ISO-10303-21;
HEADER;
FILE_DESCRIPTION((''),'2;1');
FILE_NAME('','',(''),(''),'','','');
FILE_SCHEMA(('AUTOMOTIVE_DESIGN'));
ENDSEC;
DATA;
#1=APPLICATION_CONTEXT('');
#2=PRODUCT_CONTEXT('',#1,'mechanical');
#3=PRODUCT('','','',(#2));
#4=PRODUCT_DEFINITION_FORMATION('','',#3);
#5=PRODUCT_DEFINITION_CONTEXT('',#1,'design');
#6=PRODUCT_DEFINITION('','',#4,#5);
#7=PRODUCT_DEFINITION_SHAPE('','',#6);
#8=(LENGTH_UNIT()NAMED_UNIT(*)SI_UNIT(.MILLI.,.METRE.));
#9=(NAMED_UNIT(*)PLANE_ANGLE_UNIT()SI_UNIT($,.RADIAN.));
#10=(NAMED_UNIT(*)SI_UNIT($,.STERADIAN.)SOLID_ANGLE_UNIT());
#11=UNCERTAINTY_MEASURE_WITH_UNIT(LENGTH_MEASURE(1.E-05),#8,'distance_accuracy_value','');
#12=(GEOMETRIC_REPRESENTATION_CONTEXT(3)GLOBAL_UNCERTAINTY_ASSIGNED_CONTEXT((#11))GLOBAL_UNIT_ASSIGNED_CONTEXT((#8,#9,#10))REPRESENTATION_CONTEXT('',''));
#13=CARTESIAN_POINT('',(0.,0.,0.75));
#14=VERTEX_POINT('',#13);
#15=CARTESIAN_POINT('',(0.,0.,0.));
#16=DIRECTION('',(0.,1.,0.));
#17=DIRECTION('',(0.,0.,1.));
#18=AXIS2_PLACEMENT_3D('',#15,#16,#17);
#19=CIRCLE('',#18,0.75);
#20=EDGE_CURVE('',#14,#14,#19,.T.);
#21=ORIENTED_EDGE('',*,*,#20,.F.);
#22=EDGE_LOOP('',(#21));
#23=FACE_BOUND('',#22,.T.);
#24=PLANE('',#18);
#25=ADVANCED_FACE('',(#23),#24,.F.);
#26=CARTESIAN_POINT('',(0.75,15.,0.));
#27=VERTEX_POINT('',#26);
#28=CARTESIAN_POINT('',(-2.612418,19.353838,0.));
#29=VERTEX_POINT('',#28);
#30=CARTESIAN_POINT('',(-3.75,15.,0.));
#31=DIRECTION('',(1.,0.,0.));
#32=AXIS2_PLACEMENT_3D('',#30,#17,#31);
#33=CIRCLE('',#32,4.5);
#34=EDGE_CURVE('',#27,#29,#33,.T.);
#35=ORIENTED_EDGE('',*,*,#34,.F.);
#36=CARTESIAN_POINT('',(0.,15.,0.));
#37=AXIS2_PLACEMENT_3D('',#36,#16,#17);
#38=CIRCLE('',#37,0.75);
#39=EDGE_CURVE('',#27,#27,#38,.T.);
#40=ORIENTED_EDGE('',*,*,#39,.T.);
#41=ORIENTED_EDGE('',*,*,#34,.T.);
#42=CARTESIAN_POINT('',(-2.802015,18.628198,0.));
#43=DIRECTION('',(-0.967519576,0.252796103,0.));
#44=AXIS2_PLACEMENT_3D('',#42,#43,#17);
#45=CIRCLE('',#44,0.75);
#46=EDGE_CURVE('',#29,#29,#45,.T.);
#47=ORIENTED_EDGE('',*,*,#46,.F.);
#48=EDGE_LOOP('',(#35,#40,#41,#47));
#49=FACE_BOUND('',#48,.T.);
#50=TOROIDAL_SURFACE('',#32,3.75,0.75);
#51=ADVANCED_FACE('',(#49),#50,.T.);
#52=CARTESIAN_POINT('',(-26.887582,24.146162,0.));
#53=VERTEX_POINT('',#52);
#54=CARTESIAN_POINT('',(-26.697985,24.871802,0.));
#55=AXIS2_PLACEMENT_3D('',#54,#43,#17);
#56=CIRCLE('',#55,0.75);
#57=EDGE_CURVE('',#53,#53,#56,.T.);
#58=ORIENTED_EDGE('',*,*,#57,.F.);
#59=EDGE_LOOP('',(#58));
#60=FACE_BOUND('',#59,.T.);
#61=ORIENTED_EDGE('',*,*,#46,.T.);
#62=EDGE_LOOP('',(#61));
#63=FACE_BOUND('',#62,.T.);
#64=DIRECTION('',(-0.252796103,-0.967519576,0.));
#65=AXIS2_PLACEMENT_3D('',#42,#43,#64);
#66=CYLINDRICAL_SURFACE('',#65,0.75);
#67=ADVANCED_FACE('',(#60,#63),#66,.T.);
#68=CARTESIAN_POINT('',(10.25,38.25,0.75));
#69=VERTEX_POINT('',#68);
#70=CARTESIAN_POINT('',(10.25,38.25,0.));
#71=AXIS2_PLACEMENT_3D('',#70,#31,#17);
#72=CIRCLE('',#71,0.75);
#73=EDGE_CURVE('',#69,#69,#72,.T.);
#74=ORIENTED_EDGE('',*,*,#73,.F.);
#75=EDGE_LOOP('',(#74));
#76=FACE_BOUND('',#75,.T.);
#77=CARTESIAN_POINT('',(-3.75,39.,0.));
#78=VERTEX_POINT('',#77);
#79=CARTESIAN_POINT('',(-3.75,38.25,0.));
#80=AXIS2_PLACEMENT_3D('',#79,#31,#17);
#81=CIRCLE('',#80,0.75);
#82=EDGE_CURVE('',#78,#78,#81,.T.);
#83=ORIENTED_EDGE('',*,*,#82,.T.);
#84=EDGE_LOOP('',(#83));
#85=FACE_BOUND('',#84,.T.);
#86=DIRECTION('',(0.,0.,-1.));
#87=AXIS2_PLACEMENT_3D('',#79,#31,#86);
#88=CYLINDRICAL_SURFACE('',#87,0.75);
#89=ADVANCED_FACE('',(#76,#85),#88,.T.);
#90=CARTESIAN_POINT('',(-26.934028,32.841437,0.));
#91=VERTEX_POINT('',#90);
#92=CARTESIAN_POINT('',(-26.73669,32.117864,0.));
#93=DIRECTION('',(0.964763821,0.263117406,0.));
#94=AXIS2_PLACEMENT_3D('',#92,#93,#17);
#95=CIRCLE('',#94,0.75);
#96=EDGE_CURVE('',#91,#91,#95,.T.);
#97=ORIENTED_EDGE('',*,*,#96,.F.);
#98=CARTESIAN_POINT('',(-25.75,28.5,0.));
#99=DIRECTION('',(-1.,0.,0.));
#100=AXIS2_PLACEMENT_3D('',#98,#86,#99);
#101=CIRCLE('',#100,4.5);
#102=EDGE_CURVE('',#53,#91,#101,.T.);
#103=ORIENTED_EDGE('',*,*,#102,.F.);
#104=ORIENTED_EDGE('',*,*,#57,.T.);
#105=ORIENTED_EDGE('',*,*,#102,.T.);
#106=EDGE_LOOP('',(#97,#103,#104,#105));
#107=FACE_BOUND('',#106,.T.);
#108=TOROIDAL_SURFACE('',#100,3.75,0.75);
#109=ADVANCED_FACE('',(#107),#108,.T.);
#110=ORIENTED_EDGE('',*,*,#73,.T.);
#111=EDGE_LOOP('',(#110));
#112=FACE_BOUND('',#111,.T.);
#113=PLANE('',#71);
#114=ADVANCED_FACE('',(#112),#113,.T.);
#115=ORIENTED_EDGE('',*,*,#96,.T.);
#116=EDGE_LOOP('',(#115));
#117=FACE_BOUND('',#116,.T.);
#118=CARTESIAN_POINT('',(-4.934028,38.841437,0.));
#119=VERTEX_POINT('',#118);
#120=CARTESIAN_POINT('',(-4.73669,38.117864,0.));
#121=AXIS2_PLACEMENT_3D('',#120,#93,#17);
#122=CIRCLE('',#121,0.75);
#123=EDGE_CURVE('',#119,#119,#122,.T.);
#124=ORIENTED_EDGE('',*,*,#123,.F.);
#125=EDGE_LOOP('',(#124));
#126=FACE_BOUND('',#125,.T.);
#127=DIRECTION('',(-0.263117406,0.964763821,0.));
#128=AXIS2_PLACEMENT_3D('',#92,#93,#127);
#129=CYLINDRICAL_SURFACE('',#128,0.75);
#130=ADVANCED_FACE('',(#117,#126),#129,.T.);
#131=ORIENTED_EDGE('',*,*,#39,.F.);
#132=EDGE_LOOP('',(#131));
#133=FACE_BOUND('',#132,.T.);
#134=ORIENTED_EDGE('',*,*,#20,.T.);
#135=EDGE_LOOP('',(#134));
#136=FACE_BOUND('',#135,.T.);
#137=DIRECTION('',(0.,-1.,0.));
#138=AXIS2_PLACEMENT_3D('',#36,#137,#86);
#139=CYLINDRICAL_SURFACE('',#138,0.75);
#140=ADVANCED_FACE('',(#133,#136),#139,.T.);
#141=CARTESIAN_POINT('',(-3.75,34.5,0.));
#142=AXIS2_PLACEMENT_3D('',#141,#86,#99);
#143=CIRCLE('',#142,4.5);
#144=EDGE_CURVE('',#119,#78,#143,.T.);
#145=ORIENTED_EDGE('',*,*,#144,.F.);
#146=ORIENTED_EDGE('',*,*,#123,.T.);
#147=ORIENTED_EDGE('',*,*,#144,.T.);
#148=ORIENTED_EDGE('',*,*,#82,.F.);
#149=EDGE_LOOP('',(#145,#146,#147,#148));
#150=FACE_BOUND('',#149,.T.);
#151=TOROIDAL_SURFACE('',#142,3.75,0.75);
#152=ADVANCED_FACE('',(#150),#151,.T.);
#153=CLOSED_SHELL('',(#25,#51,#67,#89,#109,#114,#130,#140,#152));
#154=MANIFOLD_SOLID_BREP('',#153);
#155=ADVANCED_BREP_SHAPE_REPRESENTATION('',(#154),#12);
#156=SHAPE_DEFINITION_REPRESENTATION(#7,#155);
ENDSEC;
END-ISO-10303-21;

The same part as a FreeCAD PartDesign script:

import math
import FreeCAD as App
import Part
import Sketcher

doc = App.newDocument("Part")
body = doc.addObject("PartDesign::Body", "Body")

sketch1 = body.newObject("Sketcher::SketchObject", "Sketch")
sketch1.AttachmentSupport = (doc.getObject("XZ_Plane"), [""])
sketch1.MapMode = "FlatFace"
sketch1.addGeometry(Part.Circle(App.Vector(0, 0, 0), App.Vector(0, 0, 1), 0.75), False)
sketch1.addConstraint(Sketcher.Constraint("Coincident", 0, 3, -1, 1))
sketch1.addConstraint(Sketcher.Constraint("Diameter", 0, 1.5))

sketch2 = body.newObject("Sketcher::SketchObject", "Sketch001")
sketch2.AttachmentSupport = (doc.getObject("XY_Plane"), [""])
sketch2.MapMode = "FlatFace"
sketch2.addGeometry(Part.LineSegment(App.Vector(0, 0, 0), App.Vector(0, 15, 0)), False)
sketch2.addGeometry(Part.ArcOfCircle(Part.Circle(App.Vector(-3.75, 15, 0), App.Vector(0, 0, 1), 3.75), math.radians(0), math.radians(75.356967)), False)
sketch2.addGeometry(Part.LineSegment(App.Vector(-2.802015, 18.628198, 0), App.Vector(-26.697985, 24.871802, 0)), False)
sketch2.addGeometry(Part.ArcOfCircle(Part.Circle(App.Vector(-25.75, 28.5, 0), App.Vector(0, 0, 1), 3.75), math.radians(105.255119), math.radians(255.356967)), False)
sketch2.addGeometry(Part.LineSegment(App.Vector(-26.73669, 32.117864, 0), App.Vector(-4.73669, 38.117864, 0)), False)
sketch2.addGeometry(Part.ArcOfCircle(Part.Circle(App.Vector(-3.75, 34.5, 0), App.Vector(0, 0, 1), 3.75), math.radians(90), math.radians(105.255119)), False)
sketch2.addGeometry(Part.LineSegment(App.Vector(-3.75, 38.25, 0), App.Vector(10.25, 38.25, 0)), False)
sketch2.addConstraint(Sketcher.Constraint("Tangent", 0, 2, 1, 1))
sketch2.addConstraint(Sketcher.Constraint("Tangent", 1, 2, 2, 1))
sketch2.addConstraint(Sketcher.Constraint("Tangent", 2, 2, 3, 2))
sketch2.addConstraint(Sketcher.Constraint("Tangent", 3, 1, 4, 1))
sketch2.addConstraint(Sketcher.Constraint("Tangent", 4, 2, 5, 2))
sketch2.addConstraint(Sketcher.Constraint("Tangent", 5, 1, 6, 1))
sketch2.addConstraint(Sketcher.Constraint("Vertical", 0))
sketch2.addConstraint(Sketcher.Constraint("Horizontal", 6))
sketch2.addConstraint(Sketcher.Constraint("Coincident", 0, 1, -1, 1))
sketch2.addConstraint(Sketcher.Constraint("Equal", 1, 3))
sketch2.addConstraint(Sketcher.Constraint("Equal", 3, 5))
sketch2.addConstraint(Sketcher.Constraint("Vertical", 1, 3, 5, 3))
sketch2.addConstraint(Sketcher.Constraint("DistanceX", 6, 1, 6, 2, 14.0))
sketch2.addConstraint(Sketcher.Constraint("DistanceY", 0, 1, 0, 2, 15.0))
sketch2.addConstraint(Sketcher.Constraint("Radius", 1, 3.75))
sketch2.addConstraint(Sketcher.Constraint("DistanceX", 3, 3, 1, 3, 22.0))
sketch2.addConstraint(Sketcher.Constraint("DistanceY", 3, 3, 5, 3, 6.0))
sketch2.addConstraint(Sketcher.Constraint("DistanceY", -1, 1, 3, 3, 28.5))
doc.recompute()

additivepipe = body.newObject("PartDesign::AdditivePipe", "AdditivePipe")
additivepipe.Profile = sketch1
additivepipe.Spine = (sketch2, ["Edge1", "Edge2", "Edge3", "Edge4", "Edge5", "Edge6", "Edge7"])

doc.recompute()
